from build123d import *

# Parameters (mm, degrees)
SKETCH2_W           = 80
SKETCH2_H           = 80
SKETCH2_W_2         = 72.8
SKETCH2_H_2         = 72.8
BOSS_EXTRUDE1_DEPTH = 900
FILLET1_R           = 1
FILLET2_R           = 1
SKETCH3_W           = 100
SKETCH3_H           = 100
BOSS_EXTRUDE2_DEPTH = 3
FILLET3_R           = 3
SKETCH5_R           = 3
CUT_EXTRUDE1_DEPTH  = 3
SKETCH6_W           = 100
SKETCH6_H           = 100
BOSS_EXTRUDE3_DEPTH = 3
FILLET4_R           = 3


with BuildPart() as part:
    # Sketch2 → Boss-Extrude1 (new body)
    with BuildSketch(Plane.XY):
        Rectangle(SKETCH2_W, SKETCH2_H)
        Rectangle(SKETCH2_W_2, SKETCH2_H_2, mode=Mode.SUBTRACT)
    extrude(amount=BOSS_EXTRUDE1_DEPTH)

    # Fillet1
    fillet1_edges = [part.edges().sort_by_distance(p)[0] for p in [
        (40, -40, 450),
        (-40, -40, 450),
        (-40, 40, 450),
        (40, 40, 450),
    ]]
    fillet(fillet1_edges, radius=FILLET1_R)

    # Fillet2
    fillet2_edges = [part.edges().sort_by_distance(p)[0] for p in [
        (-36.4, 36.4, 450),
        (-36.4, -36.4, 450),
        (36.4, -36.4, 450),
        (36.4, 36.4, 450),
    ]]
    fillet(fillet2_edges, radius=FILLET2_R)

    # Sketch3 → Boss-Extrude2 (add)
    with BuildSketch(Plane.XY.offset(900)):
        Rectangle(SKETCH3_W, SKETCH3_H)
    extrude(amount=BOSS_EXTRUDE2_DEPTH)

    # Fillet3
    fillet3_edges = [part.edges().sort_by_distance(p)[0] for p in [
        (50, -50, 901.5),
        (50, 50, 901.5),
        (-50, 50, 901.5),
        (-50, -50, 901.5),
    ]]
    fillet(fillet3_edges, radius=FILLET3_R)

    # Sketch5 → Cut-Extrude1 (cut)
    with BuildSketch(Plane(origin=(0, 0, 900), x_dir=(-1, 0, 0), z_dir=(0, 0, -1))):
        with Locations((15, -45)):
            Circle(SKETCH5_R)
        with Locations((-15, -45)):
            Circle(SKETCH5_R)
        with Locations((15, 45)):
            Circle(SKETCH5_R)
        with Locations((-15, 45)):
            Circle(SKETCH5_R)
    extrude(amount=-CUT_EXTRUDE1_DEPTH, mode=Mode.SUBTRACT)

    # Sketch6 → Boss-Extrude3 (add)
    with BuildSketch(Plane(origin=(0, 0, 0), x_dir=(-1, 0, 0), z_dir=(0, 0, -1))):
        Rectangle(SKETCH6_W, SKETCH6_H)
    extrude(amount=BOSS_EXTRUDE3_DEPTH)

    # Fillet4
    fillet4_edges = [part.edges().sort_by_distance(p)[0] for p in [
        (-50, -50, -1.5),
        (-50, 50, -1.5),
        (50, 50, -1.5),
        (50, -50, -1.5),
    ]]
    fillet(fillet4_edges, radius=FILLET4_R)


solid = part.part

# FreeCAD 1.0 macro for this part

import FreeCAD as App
import Part
import Sketcher
Q = App.Units.Quantity


def edges_at(feature, points):
    """Names of the edges that pass closest to the given points."""
    edges = feature.Shape.Edges
    near = lambda p: min(range(len(edges)), key=lambda i: edges[i].distToShape(Part.Vertex(*p))[0])
    return sorted({f"Edge{near(p) + 1}" for p in points})


def add_polygon(sketch, points):
    """Adds a closed chain of lines whose ends are joined by coincident constraints."""
    first, n = sketch.GeometryCount, len(points)
    for a, b in zip(points, points[1:] + points[:1]):
        sketch.addGeometry(Part.LineSegment(App.Vector(*a, 0), App.Vector(*b, 0)), False)
    for i in range(n):
        sketch.addConstraint(Sketcher.Constraint("Coincident", first + i, 2, first + (i + 1) % n, 1))

doc = App.newDocument("Part")
params = doc.addObject("Spreadsheet::Sheet", "Params")
for row, (alias, value) in enumerate([
    ("sketch1_width", "80 mm"),
    ("sketch1_width2", "72.8 mm"),
    ("pad1_length", "900 mm"),
    ("fillet_radius", "1 mm"),
    ("fillet2_radius", "1 mm"),
    ("sketch2_width", "100 mm"),
    ("pad2_length", "3 mm"),
    ("fillet3_radius", "3 mm"),
    ("sketch3_diameter", "6 mm"),
    ("pocket1_length", "3 mm"),
    ("sketch4_width", "100 mm"),
    ("pad3_length", "3 mm"),
    ("fillet4_radius", "3 mm"),
], start=1):
    params.set(f"A{row}", alias)
    params.set(f"B{row}", "=" + value)
    params.setAlias(f"B{row}", alias)

body = doc.addObject("PartDesign::Body", "Body")

sketch1 = body.newObject("Sketcher::SketchObject", "Sketch")
sketch1.AttachmentSupport = (doc.getObject("XY_Plane"), [""])
sketch1.MapMode = "FlatFace"
add_polygon(sketch1, [(-40, 40), (-40, -40), (40, -40), (40, 40)])
add_polygon(sketch1, [(36.4, -36.4), (-36.4, -36.4), (-36.4, 36.4), (36.4, 36.4)])
sketch1.addConstraint([
    Sketcher.Constraint("Vertical", 0),
    Sketcher.Constraint("Horizontal", 1),
    Sketcher.Constraint("Vertical", 2),
    Sketcher.Constraint("Horizontal", 3),
    Sketcher.Constraint("Horizontal", 4),
    Sketcher.Constraint("Vertical", 5),
    Sketcher.Constraint("Horizontal", 6),
    Sketcher.Constraint("Vertical", 7),
    Sketcher.Constraint("Symmetric", 0, 2, 2, 2, -1, 1),
    Sketcher.Constraint("Symmetric", 4, 2, 6, 2, -1, 1),
    Sketcher.Constraint("Equal", 3, 0),
    Sketcher.Constraint("Equal", 6, 5),
    Sketcher.Constraint("DistanceX", 1, 1, 1, 2, Q("80 mm")),
    Sketcher.Constraint("DistanceX", 4, 2, 4, 1, Q("72.8 mm")),
])
sketch1.setExpression("Constraints[20]", "Params.sketch1_width")
sketch1.setExpression("Constraints[21]", "Params.sketch1_width2")
pad1 = body.newObject("PartDesign::Pad", "Pad")
pad1.Profile = sketch1
pad1.setExpression("Length", "Params.pad1_length")
doc.recompute()

fillet = body.newObject("PartDesign::Fillet", "Fillet")
fillet.Base = (pad1, edges_at(pad1, [
    (40, -40, 450),
    (-40, -40, 450),
    (-40, 40, 450),
    (40, 40, 450),
]))
fillet.setExpression("Radius", "Params.fillet_radius")
doc.recompute()

fillet2 = body.newObject("PartDesign::Fillet", "Fillet001")
fillet2.Base = (fillet, edges_at(fillet, [
    (-36.4, 36.4, 450),
    (-36.4, -36.4, 450),
    (36.4, -36.4, 450),
    (36.4, 36.4, 450),
]))
fillet2.setExpression("Radius", "Params.fillet2_radius")

sketch2 = body.newObject("Sketcher::SketchObject", "Sketch001")
sketch2.AttachmentSupport = (doc.getObject("XY_Plane"), [""])
sketch2.MapMode = "FlatFace"
sketch2.AttachmentOffset = App.Placement(App.Vector(0, 0, 900), App.Rotation())
add_polygon(sketch2, [(-50, 50), (-50, -50), (50, -50), (50, 50)])
sketch2.addConstraint([
    Sketcher.Constraint("Vertical", 0),
    Sketcher.Constraint("Horizontal", 1),
    Sketcher.Constraint("Vertical", 2),
    Sketcher.Constraint("Horizontal", 3),
    Sketcher.Constraint("Symmetric", 0, 2, 2, 2, -1, 1),
    Sketcher.Constraint("Equal", 3, 0),
    Sketcher.Constraint("DistanceX", 1, 1, 1, 2, Q("100 mm")),
])
sketch2.setExpression("Constraints[10]", "Params.sketch2_width")
pad2 = body.newObject("PartDesign::Pad", "Pad001")
pad2.Profile = sketch2
pad2.setExpression("Length", "Params.pad2_length")
doc.recompute()

fillet3 = body.newObject("PartDesign::Fillet", "Fillet002")
fillet3.Base = (pad2, edges_at(pad2, [
    (50, -50, 901.5),
    (50, 50, 901.5),
    (-50, 50, 901.5),
    (-50, -50, 901.5),
]))
fillet3.setExpression("Radius", "Params.fillet3_radius")

sketch3 = body.newObject("Sketcher::SketchObject", "Sketch002")
sketch3.AttachmentSupport = (doc.getObject("XY_Plane"), [""])
sketch3.MapMode = "FlatFace"
sketch3.AttachmentOffset = App.Placement(App.Vector(0, 0, 900), App.Rotation())
sketch3.addGeometry([
    Part.Circle(App.Vector(-15, -45, 0), App.Vector(0, 0, 1), 3),
    Part.Circle(App.Vector(15, -45, 0), App.Vector(0, 0, 1), 3),
    Part.Circle(App.Vector(-15, 45, 0), App.Vector(0, 0, 1), 3),
    Part.Circle(App.Vector(15, 45, 0), App.Vector(0, 0, 1), 3),
], False)
sketch3.addConstraint([
    Sketcher.Constraint("Equal", 0, 1),
    Sketcher.Constraint("Equal", 1, 2),
    Sketcher.Constraint("Equal", 2, 3),
    Sketcher.Constraint("Symmetric", 1, 3, 2, 3, -1, 1),
    Sketcher.Constraint("Symmetric", 0, 3, 3, 3, -1, 1),
    Sketcher.Constraint("Symmetric", 0, 3, 1, 3, -2),
    Sketcher.Constraint("Diameter", 0, Q("6 mm")),
    Sketcher.Constraint("DistanceX", 0, 3, -1, 1, Q("15 mm")),
    Sketcher.Constraint("DistanceY", 0, 3, -1, 1, Q("45 mm")),
])
sketch3.setExpression("Constraints[6]", "Params.sketch3_diameter")
pocket1 = body.newObject("PartDesign::Pocket", "Pocket")
pocket1.Profile = sketch3
pocket1.setExpression("Length", "Params.pocket1_length")
pocket1.Reversed = True

sketch4 = body.newObject("Sketcher::SketchObject", "Sketch003")
sketch4.AttachmentSupport = (doc.getObject("XY_Plane"), [""])
sketch4.MapMode = "FlatFace"
add_polygon(sketch4, [(50, 50), (50, -50), (-50, -50), (-50, 50)])
sketch4.addConstraint([
    Sketcher.Constraint("Vertical", 0),
    Sketcher.Constraint("Horizontal", 1),
    Sketcher.Constraint("Vertical", 2),
    Sketcher.Constraint("Horizontal", 3),
    Sketcher.Constraint("Symmetric", 0, 2, 2, 2, -1, 1),
    Sketcher.Constraint("Equal", 3, 0),
    Sketcher.Constraint("DistanceX", 1, 2, 1, 1, Q("100 mm")),
])
sketch4.setExpression("Constraints[10]", "Params.sketch4_width")
pad3 = body.newObject("PartDesign::Pad", "Pad002")
pad3.Profile = sketch4
pad3.setExpression("Length", "Params.pad3_length")
pad3.Reversed = True
doc.recompute()

fillet4 = body.newObject("PartDesign::Fillet", "Fillet003")
fillet4.Base = (pad3, edges_at(pad3, [
    (-50, -50, -1.5),
    (-50, 50, -1.5),
    (50, 50, -1.5),
    (50, -50, -1.5),
]))
fillet4.setExpression("Radius", "Params.fillet4_radius")

doc.recompute()
